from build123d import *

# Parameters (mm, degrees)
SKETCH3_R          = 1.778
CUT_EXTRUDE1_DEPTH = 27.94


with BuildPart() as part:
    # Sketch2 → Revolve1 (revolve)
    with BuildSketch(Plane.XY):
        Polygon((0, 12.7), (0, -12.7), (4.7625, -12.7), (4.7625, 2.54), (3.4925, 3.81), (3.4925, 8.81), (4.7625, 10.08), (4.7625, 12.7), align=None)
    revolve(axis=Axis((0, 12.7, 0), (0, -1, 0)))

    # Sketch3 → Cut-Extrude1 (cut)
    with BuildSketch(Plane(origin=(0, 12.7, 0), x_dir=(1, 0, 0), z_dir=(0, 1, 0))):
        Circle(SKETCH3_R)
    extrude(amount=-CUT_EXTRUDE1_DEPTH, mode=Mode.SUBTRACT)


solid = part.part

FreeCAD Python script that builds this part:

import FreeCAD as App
import Part
import Sketcher
from FreeCAD import Vector
Q = App.Units.Quantity

doc = App.newDocument("Part")
body = doc.addObject("PartDesign::Body", "Body")

# Sketch on XY plane
sketch1 = doc.addObject("Sketcher::SketchObject", "Sketch")
body.addObject(sketch1)
sketch1.AttachmentSupport = (doc.XY_Plane, [""])
sketch1.MapMode = "FlatFace"
sketch1.addGeometry([
    Part.LineSegment(Vector(0, 12.7, 0), Vector(0, -12.7, 0)),  # 0
    Part.LineSegment(Vector(0, -12.7, 0), Vector(4.7625, -12.7, 0)),  # 1
    Part.LineSegment(Vector(4.7625, -12.7, 0), Vector(4.7625, 2.54, 0)),  # 2
    Part.LineSegment(Vector(4.7625, 2.54, 0), Vector(3.4925, 3.81, 0)),  # 3
    Part.LineSegment(Vector(3.4925, 3.81, 0), Vector(3.4925, 8.81, 0)),  # 4
    Part.LineSegment(Vector(3.4925, 8.81, 0), Vector(4.7625, 10.08, 0)),  # 5
    Part.LineSegment(Vector(4.7625, 10.08, 0), Vector(4.7625, 12.7, 0)),  # 6
    Part.LineSegment(Vector(4.7625, 12.7, 0), Vector(0, 12.7, 0)),  # 7
], False)
sketch1.addConstraint([
    Sketcher.Constraint("Coincident", 0, 2, 1, 1),
    Sketcher.Constraint("Coincident", 1, 2, 2, 1),
    Sketcher.Constraint("Coincident", 2, 2, 3, 1),
    Sketcher.Constraint("Coincident", 3, 2, 4, 1),
    Sketcher.Constraint("Coincident", 4, 2, 5, 1),
    Sketcher.Constraint("Coincident", 5, 2, 6, 1),
    Sketcher.Constraint("Coincident", 6, 2, 7, 1),
    Sketcher.Constraint("Coincident", 7, 2, 0, 1),
    Sketcher.Constraint("Vertical", 0),
    Sketcher.Constraint("Horizontal", 1),
    Sketcher.Constraint("Vertical", 2),
    Sketcher.Constraint("Vertical", 4),
    Sketcher.Constraint("Vertical", 6),
    Sketcher.Constraint("Horizontal", 7),
    Sketcher.Constraint("Symmetric", 0, 2, 7, 2, -1, 1),
    Sketcher.Constraint("Perpendicular", 3, 5),
    Sketcher.Constraint("Vertical", 2, 2, 5, 2),
    Sketcher.Constraint("Equal", 3, 5),
    Sketcher.Constraint("DistanceY", 0, 2, 0, 1, Q("1 in")),
    Sketcher.Constraint("DistanceY", 2, 1, 2, 2, Q("0.6 in")),
    Sketcher.Constraint("DistanceX", 1, 1, 1, 2, Q("0.1875 in")),
    Sketcher.Constraint("DistanceY", -1, 1, 3, 2, Q("0.15 in")),
    Sketcher.Constraint("DistanceY", 4, 1, 4, 2, 5.0),
])
revolution = doc.addObject("PartDesign::Revolution", "Revolution")
body.addObject(revolution)
revolution.Profile = sketch1
revolution.ReferenceAxis = (sketch1, ["V_Axis"])
revolution.Angle = 360

# Sketch on XZ plane
sketch2 = doc.addObject("Sketcher::SketchObject", "Sketch001")
body.addObject(sketch2)
sketch2.AttachmentSupport = (doc.XZ_Plane, [""])
sketch2.MapMode = "FlatFace"
sketch2.AttachmentOffset = App.Placement(Vector(0, 0, -0.5 * 25.4), App.Rotation())
sketch2.addGeometry(Part.Circle(Vector(0, 0, 0), Vector(0, 0, 1), 1.778), False)
sketch2.addConstraint([
    Sketcher.Constraint("Coincident", 0, 3, -1, 1),
    Sketcher.Constraint("Diameter", 0, Q("0.14 in")),
])
pocket1 = doc.addObject("PartDesign::Pocket", "Pocket")
body.addObject(pocket1)
pocket1.Profile = sketch2
pocket1.Length = Q("1.1 in")
pocket1.Reversed = True

doc.recompute()
